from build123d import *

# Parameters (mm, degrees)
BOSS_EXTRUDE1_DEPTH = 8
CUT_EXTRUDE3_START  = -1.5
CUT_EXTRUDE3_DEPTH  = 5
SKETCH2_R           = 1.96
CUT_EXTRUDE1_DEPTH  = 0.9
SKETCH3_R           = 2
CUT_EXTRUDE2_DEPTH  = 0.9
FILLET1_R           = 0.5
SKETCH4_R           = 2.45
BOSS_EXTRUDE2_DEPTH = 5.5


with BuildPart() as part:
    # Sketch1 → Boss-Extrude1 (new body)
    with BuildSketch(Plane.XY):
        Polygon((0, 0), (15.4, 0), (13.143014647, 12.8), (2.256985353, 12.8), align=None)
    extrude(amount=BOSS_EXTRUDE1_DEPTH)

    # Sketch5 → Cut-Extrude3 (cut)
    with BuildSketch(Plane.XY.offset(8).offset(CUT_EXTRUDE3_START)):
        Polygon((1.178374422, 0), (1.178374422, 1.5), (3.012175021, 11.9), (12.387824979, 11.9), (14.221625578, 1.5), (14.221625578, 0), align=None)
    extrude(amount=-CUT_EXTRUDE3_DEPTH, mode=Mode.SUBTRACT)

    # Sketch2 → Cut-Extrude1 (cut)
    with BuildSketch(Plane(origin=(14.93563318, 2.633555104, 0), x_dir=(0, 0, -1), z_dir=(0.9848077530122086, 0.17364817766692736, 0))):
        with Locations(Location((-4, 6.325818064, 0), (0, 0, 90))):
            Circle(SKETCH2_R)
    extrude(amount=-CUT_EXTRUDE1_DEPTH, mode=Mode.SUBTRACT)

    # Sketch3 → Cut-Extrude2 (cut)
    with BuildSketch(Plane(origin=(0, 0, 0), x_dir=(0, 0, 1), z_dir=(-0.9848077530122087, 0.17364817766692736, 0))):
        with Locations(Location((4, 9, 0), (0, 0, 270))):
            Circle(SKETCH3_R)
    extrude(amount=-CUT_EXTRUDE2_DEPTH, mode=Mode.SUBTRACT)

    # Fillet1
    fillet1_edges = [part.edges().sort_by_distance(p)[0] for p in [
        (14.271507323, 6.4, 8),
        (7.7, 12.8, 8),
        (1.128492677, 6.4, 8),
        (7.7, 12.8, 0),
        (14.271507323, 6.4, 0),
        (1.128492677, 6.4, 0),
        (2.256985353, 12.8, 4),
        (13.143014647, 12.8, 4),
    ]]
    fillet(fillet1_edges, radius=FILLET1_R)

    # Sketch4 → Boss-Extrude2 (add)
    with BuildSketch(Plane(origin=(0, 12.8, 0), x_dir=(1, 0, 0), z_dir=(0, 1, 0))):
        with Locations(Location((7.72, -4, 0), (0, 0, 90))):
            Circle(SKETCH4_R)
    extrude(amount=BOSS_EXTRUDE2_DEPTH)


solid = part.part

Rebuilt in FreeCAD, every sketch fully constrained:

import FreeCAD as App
import Part
import Sketcher

V = App.Vector
Q = App.Units.Quantity


def edges_at(feature, points):
    """Names of the edges that pass closest to the given points."""
    edges = feature.Shape.Edges
    near = lambda p: min(range(len(edges)), key=lambda i: edges[i].distToShape(Part.Vertex(*p))[0])
    return sorted({f"Edge{near(p) + 1}" for p in points})


def add_polygon(sketch, points):
    """Adds a closed chain of lines whose ends are joined by coincident constraints."""
    first, n = sketch.GeometryCount, len(points)
    for a, b in zip(points, points[1:] + points[:1]):
        sketch.addGeometry(Part.LineSegment(App.Vector(*a, 0), App.Vector(*b, 0)), False)
    for i in range(n):
        sketch.addConstraint(Sketcher.Constraint("Coincident", first + i, 2, first + (i + 1) % n, 1))

doc = App.newDocument("Part")
params = doc.addObject("Spreadsheet::Sheet", "Params")
for row, (alias, value) in enumerate([
    ("sketch1_width", "15.4 mm"),
    ("pad1_length", "8 mm"),
    ("sketch2_height", "1.5 mm"),
    ("pocket1_length", "5 mm"),
    ("sketch3_diameter", "3.92 mm"),
    ("pocket2_length", "0.9 mm"),
    ("sketch4_diameter", "4 mm"),
    ("pocket3_length", "0.9 mm"),
    ("fillet_radius", "0.5 mm"),
    ("sketch5_diameter", "4.9 mm"),
    ("pad2_length", "5.5 mm"),
], start=1):
    params.set(f"A{row}", alias)
    params.set(f"B{row}", "=" + value)
    params.setAlias(f"B{row}", alias)

body = doc.addObject("PartDesign::Body", "Body")

# Sketch on XY plane
sketch1 = body.newObject("Sketcher::SketchObject", "Sketch")
sketch1.AttachmentSupport = (doc.getObject("XY_Plane"), [""])
sketch1.MapMode = "FlatFace"
add_polygon(sketch1, [(0, 0), (15.4, 0), (13.143015, 12.8), (2.256985, 12.8)])  # lines 0-3
sketch1.addConstraint([
    Sketcher.Constraint("Horizontal", 0),
    Sketcher.Constraint("Horizontal", 2),
    Sketcher.Constraint("Coincident", 3, 2, -1, 1),
    Sketcher.Constraint("Equal", 1, 3),
    Sketcher.Constraint("Angle", 1, Q("100 deg")),
    Sketcher.Constraint("DistanceX", 0, 1, 0, 2, 15.4),
    Sketcher.Constraint("DistanceY", -1, 1, 1, 2, 12.8),
])
sketch1.setExpression("Constraints[9]", "Params.sketch1_width")
pad1 = body.newObject("PartDesign::Pad", "Pad")
pad1.Profile = sketch1
pad1.setExpression("Length", "Params.pad1_length")

# Sketch on XY plane
sketch2 = body.newObject("Sketcher::SketchObject", "Sketch001")
sketch2.AttachmentSupport = (doc.getObject("XY_Plane"), [""])
sketch2.MapMode = "FlatFace"
sketch2.AttachmentOffset = App.Placement(V(0, 0, 6.5), App.Rotation())
add_polygon(sketch2, [(1.178374, 1.5), (1.178374, 0), (14.221626, 0), (14.221626, 1.5), (12.387825, 11.9), (3.012175, 11.9)])  # lines 0-5
sketch2.addConstraint([
    Sketcher.Constraint("Vertical", 0),
    Sketcher.Constraint("Horizontal", 1),
    Sketcher.Constraint("Vertical", 2),
    Sketcher.Constraint("Horizontal", 4),
    Sketcher.Constraint("PointOnObject", 0, 2, -1),
    Sketcher.Constraint("Horizontal", 2, 2, 5, 2),
    Sketcher.Constraint("Equal", 3, 5),
    Sketcher.Constraint("Angle", 3, Q("100 deg")),
    Sketcher.Constraint("DistanceY", 0, 2, 0, 1, 1.5),
    Sketcher.Constraint("DistanceY", -1, 1, 3, 2, 11.9),
    Sketcher.Constraint("DistanceX", 1, 1, 1, 2, 13.043251),
    Sketcher.Constraint("DistanceX", -1, 1, 0, 2, 1.178374),
])
sketch2.setExpression("Constraints[14]", "Params.sketch2_height")
pocket1 = body.newObject("PartDesign::Pocket", "Pocket")
pocket1.Profile = sketch2
pocket1.setExpression("Length", "Params.pocket1_length")

# Sketch on an angled plane
sketch3 = body.newObject("Sketcher::SketchObject", "Sketch002")
sketch3.Placement = App.Placement(V(14.935633, 2.633555, 0), App.Rotation(V(0, 0, -1), V(-0.173648178, 0.984807753, 0), V(0.984807753, 0.173648178, 0), "ZXY"))
sketch3.addGeometry(Part.Circle(V(-4, 6.325818, 0), V(0, 0, 1), 1.96), False)
sketch3.addConstraint([
    Sketcher.Constraint("Diameter", 0, 3.92),
    Sketcher.Constraint("DistanceX", 0, 3, -1, 1, 4.0),
    Sketcher.Constraint("DistanceY", -1, 1, 0, 3, 6.325818),
])
sketch3.setExpression("Constraints[0]", "Params.sketch3_diameter")
pocket2 = body.newObject("PartDesign::Pocket", "Pocket001")
pocket2.Profile = sketch3
pocket2.setExpression("Length", "Params.pocket2_length")

# Sketch on an angled plane
sketch4 = body.newObject("Sketcher::SketchObject", "Sketch003")
sketch4.Placement = App.Placement(V(0, 0, 0), App.Rotation(V(0, 0, 1), V(0.173648178, 0.984807753, 0), V(-0.984807753, 0.173648178, 0), "ZXY"))
sketch4.addGeometry(Part.Circle(V(4, 9, 0), V(0, 0, 1), 2), False)
sketch4.addConstraint([
    Sketcher.Constraint("Diameter", 0, 4.0),
    Sketcher.Constraint("DistanceX", -1, 1, 0, 3, 4.0),
    Sketcher.Constraint("DistanceY", -1, 1, 0, 3, 9.0),
])
sketch4.setExpression("Constraints[0]", "Params.sketch4_diameter")
pocket3 = body.newObject("PartDesign::Pocket", "Pocket002")
pocket3.Profile = sketch4
pocket3.setExpression("Length", "Params.pocket3_length")
doc.recompute()

fillet = body.newObject("PartDesign::Fillet", "Fillet")
fillet.Base = (pocket3, edges_at(pocket3, [
    (14.272, 6.4, 8),
    (7.7, 12.8, 8),
    (1.128, 6.4, 8),
    (7.7, 12.8, 0),
    (14.272, 6.4, 0),
    (1.128, 6.4, 0),
    (2.257, 12.8, 4),
    (13.143, 12.8, 4),
]))
fillet.setExpression("Radius", "Params.fillet_radius")

# Sketch on XZ plane
sketch5 = body.newObject("Sketcher::SketchObject", "Sketch004")
sketch5.AttachmentSupport = (doc.getObject("XZ_Plane"), [""])
sketch5.MapMode = "FlatFace"
sketch5.AttachmentOffset = App.Placement(V(0, 0, -12.8), App.Rotation())
sketch5.addGeometry(Part.Circle(V(7.72, 4, 0), V(0, 0, 1), 2.45), False)
sketch5.addConstraint([
    Sketcher.Constraint("Diameter", 0, 4.9),
    Sketcher.Constraint("DistanceY", -1, 1, 0, 3, 4.0),
    Sketcher.Constraint("DistanceX", -1, 1, 0, 3, 7.72),
])
sketch5.setExpression("Constraints[0]", "Params.sketch5_diameter")
pad2 = body.newObject("PartDesign::Pad", "Pad001")
pad2.Profile = sketch5
pad2.setExpression("Length", "Params.pad2_length")
pad2.Reversed = True

doc.recompute()
